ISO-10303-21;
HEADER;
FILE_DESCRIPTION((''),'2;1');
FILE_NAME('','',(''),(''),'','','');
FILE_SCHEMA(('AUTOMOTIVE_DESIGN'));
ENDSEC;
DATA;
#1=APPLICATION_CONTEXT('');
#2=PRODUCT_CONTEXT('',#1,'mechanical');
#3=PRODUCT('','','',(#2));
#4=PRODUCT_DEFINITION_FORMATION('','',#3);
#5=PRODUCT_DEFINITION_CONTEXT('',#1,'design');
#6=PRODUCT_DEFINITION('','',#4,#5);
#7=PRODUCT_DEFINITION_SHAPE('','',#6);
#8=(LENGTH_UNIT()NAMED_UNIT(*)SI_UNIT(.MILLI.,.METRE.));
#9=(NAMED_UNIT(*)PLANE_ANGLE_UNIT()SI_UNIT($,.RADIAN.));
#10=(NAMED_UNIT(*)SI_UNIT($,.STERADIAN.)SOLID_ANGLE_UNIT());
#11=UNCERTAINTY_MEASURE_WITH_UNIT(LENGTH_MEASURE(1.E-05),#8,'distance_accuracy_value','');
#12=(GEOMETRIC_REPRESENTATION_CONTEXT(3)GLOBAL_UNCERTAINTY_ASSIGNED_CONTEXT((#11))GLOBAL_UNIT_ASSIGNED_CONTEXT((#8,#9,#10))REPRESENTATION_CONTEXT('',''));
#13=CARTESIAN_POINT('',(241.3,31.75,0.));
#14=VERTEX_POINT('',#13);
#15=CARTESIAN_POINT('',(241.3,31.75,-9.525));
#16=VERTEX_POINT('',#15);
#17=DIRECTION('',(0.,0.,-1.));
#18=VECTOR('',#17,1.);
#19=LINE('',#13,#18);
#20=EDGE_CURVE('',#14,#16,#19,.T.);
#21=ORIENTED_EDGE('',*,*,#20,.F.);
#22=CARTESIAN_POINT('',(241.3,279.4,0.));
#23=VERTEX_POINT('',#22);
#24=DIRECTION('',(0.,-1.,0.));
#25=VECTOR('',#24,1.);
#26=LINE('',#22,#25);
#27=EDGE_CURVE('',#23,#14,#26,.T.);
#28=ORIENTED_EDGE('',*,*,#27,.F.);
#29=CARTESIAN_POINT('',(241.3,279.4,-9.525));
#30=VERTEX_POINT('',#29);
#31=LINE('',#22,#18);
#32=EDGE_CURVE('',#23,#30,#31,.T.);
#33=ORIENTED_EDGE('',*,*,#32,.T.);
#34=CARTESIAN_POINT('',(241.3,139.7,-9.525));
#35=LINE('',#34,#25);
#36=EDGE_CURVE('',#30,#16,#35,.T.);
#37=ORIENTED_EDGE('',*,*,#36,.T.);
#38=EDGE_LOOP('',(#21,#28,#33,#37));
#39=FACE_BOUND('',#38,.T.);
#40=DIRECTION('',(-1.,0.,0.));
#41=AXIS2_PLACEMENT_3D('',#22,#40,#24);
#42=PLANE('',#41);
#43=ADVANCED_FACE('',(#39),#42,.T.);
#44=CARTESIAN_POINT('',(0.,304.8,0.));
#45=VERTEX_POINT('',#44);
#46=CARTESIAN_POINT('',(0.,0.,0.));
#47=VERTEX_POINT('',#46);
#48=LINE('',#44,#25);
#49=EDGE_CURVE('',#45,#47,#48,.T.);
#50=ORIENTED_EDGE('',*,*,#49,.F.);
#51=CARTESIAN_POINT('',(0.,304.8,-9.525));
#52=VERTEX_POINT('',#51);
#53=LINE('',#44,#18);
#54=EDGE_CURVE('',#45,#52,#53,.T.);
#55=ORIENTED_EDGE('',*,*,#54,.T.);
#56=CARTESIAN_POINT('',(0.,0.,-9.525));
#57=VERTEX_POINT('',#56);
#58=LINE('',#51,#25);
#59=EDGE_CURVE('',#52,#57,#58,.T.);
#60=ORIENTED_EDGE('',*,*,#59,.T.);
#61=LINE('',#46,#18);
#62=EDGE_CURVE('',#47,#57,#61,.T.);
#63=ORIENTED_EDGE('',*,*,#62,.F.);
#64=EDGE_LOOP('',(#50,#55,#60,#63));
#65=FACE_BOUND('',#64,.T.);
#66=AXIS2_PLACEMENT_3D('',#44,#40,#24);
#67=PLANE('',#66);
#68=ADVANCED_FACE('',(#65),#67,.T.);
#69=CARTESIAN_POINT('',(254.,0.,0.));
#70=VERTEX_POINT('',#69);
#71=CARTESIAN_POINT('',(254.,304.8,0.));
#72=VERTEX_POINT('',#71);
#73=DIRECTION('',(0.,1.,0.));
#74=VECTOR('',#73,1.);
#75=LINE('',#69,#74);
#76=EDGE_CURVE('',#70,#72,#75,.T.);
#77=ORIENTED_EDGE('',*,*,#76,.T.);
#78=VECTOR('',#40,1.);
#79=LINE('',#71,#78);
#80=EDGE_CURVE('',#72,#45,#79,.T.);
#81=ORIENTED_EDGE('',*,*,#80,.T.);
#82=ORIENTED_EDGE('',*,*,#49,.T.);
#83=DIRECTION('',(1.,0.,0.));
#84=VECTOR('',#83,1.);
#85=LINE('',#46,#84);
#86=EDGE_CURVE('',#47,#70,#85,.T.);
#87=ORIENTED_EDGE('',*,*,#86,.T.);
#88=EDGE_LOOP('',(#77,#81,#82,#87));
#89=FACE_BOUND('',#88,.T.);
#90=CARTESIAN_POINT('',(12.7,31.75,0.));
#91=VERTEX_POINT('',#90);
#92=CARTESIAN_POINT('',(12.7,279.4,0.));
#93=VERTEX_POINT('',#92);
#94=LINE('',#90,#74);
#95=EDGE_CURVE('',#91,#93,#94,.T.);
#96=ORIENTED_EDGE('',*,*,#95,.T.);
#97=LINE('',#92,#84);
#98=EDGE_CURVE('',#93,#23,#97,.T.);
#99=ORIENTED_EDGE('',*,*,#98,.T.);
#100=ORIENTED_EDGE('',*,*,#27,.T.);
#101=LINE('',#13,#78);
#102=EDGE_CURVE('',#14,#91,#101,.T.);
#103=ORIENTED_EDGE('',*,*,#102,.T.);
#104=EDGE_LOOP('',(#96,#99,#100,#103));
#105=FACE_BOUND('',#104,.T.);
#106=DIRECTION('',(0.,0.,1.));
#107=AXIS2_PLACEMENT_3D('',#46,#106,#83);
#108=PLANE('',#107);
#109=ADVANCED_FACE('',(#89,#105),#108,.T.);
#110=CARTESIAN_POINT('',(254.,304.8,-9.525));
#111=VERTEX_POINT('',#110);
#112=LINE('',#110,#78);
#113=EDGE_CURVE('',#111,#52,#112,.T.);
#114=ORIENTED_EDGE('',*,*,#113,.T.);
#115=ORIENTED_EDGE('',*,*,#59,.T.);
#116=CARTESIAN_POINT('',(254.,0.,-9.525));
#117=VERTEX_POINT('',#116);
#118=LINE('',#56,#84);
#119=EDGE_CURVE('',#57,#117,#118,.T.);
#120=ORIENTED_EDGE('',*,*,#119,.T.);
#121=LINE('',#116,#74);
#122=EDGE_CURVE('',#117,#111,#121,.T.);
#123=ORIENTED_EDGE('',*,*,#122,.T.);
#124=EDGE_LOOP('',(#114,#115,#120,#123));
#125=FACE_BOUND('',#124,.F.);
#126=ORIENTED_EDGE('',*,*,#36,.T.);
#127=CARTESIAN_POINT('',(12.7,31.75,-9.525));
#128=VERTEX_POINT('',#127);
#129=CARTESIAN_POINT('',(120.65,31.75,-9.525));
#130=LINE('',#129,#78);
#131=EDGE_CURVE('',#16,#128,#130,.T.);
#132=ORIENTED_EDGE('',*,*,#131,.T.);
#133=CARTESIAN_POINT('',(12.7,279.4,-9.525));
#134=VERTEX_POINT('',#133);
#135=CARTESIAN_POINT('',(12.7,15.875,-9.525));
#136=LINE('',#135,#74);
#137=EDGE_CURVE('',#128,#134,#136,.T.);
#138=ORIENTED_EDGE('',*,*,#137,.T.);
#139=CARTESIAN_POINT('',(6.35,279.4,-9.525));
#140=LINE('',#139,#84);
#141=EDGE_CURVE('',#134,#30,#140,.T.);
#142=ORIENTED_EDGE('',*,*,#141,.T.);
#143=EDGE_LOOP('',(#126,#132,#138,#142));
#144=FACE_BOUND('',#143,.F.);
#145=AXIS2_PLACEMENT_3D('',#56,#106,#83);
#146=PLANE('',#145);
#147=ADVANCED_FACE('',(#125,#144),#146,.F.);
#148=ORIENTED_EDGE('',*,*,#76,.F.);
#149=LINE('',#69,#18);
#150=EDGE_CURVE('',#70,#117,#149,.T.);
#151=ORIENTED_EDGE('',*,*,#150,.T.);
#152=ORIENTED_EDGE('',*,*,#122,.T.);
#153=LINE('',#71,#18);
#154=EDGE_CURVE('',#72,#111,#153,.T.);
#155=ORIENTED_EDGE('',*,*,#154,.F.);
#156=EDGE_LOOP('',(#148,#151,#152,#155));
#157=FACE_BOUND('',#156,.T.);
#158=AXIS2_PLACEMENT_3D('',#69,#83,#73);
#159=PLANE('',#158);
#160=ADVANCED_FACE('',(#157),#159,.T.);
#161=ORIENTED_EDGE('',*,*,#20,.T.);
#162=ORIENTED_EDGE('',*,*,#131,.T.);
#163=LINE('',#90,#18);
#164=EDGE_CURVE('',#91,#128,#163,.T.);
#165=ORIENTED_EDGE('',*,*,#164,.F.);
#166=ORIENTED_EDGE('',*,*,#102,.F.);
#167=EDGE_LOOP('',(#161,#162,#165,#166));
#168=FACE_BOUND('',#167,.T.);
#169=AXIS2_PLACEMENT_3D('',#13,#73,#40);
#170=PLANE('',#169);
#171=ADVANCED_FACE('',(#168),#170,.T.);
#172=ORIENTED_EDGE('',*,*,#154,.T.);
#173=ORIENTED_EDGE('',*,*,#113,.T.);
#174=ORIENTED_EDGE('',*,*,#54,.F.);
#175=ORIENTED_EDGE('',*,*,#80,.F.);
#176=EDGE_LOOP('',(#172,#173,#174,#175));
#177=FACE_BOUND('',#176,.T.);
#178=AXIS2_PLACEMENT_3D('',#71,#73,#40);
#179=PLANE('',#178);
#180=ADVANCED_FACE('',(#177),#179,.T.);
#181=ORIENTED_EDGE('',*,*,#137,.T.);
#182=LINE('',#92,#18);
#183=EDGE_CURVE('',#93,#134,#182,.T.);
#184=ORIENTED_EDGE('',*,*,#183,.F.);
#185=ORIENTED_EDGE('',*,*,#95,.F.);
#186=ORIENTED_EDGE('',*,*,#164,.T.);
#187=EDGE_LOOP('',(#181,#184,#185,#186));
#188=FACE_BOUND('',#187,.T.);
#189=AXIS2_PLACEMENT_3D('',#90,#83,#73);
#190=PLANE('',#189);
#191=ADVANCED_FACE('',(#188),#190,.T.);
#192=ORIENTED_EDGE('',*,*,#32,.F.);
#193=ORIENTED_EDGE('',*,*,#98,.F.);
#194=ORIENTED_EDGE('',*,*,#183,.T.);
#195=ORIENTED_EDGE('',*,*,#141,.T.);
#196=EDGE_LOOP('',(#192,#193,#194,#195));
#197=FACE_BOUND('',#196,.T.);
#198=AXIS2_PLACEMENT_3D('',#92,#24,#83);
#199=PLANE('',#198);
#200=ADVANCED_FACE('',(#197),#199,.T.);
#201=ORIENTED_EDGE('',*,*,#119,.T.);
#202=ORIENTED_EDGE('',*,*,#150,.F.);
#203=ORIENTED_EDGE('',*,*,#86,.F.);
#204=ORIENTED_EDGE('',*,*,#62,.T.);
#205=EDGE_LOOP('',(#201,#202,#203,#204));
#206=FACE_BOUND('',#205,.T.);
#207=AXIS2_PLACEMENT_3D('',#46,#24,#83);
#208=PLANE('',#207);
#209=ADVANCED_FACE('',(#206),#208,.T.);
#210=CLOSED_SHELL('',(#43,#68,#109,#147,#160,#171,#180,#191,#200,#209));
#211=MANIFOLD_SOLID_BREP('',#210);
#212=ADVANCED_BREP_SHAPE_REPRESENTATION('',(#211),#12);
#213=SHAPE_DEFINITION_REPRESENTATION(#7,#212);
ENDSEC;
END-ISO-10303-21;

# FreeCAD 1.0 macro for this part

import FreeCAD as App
import Part
import Sketcher
Q = App.Units.Quantity


def add_polygon(sketch, points):
    """Adds a closed chain of lines whose ends are joined by coincident constraints."""
    first, n = sketch.GeometryCount, len(points)
    for a, b in zip(points, points[1:] + points[:1]):
        sketch.addGeometry(Part.LineSegment(App.Vector(*a, 0), App.Vector(*b, 0)), False)
    for i in range(n):
        sketch.addConstraint(Sketcher.Constraint("Coincident", first + i, 2, first + (i + 1) % n, 1))

doc = App.newDocument("Part")
body = doc.addObject("PartDesign::Body", "Body")

# Sketch on XY plane
sketch1 = body.newObject("Sketcher::SketchObject", "Sketch")
sketch1.AttachmentSupport = (doc.getObject("XY_Plane"), [""])
sketch1.MapMode = "FlatFace"
add_polygon(sketch1, [(0, 305), (0, 0), (254, 0), (254, 305)])  # lines 0-3
sketch1.addConstraint(Sketcher.Constraint("Vertical", 0))
sketch1.addConstraint(Sketcher.Constraint("Horizontal", 1))
sketch1.addConstraint(Sketcher.Constraint("Vertical", 2))
sketch1.addConstraint(Sketcher.Constraint("Horizontal", 3))
sketch1.addConstraint(Sketcher.Constraint("Coincident", 0, 2, -1, 1))
sketch1.addConstraint(Sketcher.Constraint("DistanceX", 1, 1, 1, 2, Q("10 in")))
sketch1.addConstraint(Sketcher.Constraint("DistanceY", 0, 2, 0, 1, Q("12 in")))
pad1 = body.newObject("PartDesign::Pad", "Pad")
pad1.Profile = sketch1
pad1.Length = Q("0.375 in")
pad1.Reversed = True

# Sketch on XY plane
sketch2 = body.newObject("Sketcher::SketchObject", "Sketch001")
sketch2.AttachmentSupport = (doc.getObject("XY_Plane"), [""])
sketch2.MapMode = "FlatFace"
add_polygon(sketch2, [(241, 279), (13, 279), (13, 32), (241, 32)])  # lines 0-3
sketch2.addConstraint(Sketcher.Constraint("Horizontal", 0))
sketch2.addConstraint(Sketcher.Constraint("Vertical", 1))
sketch2.addConstraint(Sketcher.Constraint("Horizontal", 2))
sketch2.addConstraint(Sketcher.Constraint("Vertical", 3))
sketch2.addConstraint(Sketcher.Constraint("DistanceX", -1, 1, 0, 2, Q("0.5 in")))
sketch2.addConstraint(Sketcher.Constraint("DistanceX", 0, 2, 0, 1, Q("9 in")))
sketch2.addConstraint(Sketcher.Constraint("DistanceY", -1, 1, 1, 2, Q("1.25 in")))
sketch2.addConstraint(Sketcher.Constraint("DistanceY", -1, 1, 0, 2, Q("11 in")))
pocket1 = body.newObject("PartDesign::Pocket", "Pocket")
pocket1.Profile = sketch2
pocket1.Type = "ThroughAll"

doc.recompute()
